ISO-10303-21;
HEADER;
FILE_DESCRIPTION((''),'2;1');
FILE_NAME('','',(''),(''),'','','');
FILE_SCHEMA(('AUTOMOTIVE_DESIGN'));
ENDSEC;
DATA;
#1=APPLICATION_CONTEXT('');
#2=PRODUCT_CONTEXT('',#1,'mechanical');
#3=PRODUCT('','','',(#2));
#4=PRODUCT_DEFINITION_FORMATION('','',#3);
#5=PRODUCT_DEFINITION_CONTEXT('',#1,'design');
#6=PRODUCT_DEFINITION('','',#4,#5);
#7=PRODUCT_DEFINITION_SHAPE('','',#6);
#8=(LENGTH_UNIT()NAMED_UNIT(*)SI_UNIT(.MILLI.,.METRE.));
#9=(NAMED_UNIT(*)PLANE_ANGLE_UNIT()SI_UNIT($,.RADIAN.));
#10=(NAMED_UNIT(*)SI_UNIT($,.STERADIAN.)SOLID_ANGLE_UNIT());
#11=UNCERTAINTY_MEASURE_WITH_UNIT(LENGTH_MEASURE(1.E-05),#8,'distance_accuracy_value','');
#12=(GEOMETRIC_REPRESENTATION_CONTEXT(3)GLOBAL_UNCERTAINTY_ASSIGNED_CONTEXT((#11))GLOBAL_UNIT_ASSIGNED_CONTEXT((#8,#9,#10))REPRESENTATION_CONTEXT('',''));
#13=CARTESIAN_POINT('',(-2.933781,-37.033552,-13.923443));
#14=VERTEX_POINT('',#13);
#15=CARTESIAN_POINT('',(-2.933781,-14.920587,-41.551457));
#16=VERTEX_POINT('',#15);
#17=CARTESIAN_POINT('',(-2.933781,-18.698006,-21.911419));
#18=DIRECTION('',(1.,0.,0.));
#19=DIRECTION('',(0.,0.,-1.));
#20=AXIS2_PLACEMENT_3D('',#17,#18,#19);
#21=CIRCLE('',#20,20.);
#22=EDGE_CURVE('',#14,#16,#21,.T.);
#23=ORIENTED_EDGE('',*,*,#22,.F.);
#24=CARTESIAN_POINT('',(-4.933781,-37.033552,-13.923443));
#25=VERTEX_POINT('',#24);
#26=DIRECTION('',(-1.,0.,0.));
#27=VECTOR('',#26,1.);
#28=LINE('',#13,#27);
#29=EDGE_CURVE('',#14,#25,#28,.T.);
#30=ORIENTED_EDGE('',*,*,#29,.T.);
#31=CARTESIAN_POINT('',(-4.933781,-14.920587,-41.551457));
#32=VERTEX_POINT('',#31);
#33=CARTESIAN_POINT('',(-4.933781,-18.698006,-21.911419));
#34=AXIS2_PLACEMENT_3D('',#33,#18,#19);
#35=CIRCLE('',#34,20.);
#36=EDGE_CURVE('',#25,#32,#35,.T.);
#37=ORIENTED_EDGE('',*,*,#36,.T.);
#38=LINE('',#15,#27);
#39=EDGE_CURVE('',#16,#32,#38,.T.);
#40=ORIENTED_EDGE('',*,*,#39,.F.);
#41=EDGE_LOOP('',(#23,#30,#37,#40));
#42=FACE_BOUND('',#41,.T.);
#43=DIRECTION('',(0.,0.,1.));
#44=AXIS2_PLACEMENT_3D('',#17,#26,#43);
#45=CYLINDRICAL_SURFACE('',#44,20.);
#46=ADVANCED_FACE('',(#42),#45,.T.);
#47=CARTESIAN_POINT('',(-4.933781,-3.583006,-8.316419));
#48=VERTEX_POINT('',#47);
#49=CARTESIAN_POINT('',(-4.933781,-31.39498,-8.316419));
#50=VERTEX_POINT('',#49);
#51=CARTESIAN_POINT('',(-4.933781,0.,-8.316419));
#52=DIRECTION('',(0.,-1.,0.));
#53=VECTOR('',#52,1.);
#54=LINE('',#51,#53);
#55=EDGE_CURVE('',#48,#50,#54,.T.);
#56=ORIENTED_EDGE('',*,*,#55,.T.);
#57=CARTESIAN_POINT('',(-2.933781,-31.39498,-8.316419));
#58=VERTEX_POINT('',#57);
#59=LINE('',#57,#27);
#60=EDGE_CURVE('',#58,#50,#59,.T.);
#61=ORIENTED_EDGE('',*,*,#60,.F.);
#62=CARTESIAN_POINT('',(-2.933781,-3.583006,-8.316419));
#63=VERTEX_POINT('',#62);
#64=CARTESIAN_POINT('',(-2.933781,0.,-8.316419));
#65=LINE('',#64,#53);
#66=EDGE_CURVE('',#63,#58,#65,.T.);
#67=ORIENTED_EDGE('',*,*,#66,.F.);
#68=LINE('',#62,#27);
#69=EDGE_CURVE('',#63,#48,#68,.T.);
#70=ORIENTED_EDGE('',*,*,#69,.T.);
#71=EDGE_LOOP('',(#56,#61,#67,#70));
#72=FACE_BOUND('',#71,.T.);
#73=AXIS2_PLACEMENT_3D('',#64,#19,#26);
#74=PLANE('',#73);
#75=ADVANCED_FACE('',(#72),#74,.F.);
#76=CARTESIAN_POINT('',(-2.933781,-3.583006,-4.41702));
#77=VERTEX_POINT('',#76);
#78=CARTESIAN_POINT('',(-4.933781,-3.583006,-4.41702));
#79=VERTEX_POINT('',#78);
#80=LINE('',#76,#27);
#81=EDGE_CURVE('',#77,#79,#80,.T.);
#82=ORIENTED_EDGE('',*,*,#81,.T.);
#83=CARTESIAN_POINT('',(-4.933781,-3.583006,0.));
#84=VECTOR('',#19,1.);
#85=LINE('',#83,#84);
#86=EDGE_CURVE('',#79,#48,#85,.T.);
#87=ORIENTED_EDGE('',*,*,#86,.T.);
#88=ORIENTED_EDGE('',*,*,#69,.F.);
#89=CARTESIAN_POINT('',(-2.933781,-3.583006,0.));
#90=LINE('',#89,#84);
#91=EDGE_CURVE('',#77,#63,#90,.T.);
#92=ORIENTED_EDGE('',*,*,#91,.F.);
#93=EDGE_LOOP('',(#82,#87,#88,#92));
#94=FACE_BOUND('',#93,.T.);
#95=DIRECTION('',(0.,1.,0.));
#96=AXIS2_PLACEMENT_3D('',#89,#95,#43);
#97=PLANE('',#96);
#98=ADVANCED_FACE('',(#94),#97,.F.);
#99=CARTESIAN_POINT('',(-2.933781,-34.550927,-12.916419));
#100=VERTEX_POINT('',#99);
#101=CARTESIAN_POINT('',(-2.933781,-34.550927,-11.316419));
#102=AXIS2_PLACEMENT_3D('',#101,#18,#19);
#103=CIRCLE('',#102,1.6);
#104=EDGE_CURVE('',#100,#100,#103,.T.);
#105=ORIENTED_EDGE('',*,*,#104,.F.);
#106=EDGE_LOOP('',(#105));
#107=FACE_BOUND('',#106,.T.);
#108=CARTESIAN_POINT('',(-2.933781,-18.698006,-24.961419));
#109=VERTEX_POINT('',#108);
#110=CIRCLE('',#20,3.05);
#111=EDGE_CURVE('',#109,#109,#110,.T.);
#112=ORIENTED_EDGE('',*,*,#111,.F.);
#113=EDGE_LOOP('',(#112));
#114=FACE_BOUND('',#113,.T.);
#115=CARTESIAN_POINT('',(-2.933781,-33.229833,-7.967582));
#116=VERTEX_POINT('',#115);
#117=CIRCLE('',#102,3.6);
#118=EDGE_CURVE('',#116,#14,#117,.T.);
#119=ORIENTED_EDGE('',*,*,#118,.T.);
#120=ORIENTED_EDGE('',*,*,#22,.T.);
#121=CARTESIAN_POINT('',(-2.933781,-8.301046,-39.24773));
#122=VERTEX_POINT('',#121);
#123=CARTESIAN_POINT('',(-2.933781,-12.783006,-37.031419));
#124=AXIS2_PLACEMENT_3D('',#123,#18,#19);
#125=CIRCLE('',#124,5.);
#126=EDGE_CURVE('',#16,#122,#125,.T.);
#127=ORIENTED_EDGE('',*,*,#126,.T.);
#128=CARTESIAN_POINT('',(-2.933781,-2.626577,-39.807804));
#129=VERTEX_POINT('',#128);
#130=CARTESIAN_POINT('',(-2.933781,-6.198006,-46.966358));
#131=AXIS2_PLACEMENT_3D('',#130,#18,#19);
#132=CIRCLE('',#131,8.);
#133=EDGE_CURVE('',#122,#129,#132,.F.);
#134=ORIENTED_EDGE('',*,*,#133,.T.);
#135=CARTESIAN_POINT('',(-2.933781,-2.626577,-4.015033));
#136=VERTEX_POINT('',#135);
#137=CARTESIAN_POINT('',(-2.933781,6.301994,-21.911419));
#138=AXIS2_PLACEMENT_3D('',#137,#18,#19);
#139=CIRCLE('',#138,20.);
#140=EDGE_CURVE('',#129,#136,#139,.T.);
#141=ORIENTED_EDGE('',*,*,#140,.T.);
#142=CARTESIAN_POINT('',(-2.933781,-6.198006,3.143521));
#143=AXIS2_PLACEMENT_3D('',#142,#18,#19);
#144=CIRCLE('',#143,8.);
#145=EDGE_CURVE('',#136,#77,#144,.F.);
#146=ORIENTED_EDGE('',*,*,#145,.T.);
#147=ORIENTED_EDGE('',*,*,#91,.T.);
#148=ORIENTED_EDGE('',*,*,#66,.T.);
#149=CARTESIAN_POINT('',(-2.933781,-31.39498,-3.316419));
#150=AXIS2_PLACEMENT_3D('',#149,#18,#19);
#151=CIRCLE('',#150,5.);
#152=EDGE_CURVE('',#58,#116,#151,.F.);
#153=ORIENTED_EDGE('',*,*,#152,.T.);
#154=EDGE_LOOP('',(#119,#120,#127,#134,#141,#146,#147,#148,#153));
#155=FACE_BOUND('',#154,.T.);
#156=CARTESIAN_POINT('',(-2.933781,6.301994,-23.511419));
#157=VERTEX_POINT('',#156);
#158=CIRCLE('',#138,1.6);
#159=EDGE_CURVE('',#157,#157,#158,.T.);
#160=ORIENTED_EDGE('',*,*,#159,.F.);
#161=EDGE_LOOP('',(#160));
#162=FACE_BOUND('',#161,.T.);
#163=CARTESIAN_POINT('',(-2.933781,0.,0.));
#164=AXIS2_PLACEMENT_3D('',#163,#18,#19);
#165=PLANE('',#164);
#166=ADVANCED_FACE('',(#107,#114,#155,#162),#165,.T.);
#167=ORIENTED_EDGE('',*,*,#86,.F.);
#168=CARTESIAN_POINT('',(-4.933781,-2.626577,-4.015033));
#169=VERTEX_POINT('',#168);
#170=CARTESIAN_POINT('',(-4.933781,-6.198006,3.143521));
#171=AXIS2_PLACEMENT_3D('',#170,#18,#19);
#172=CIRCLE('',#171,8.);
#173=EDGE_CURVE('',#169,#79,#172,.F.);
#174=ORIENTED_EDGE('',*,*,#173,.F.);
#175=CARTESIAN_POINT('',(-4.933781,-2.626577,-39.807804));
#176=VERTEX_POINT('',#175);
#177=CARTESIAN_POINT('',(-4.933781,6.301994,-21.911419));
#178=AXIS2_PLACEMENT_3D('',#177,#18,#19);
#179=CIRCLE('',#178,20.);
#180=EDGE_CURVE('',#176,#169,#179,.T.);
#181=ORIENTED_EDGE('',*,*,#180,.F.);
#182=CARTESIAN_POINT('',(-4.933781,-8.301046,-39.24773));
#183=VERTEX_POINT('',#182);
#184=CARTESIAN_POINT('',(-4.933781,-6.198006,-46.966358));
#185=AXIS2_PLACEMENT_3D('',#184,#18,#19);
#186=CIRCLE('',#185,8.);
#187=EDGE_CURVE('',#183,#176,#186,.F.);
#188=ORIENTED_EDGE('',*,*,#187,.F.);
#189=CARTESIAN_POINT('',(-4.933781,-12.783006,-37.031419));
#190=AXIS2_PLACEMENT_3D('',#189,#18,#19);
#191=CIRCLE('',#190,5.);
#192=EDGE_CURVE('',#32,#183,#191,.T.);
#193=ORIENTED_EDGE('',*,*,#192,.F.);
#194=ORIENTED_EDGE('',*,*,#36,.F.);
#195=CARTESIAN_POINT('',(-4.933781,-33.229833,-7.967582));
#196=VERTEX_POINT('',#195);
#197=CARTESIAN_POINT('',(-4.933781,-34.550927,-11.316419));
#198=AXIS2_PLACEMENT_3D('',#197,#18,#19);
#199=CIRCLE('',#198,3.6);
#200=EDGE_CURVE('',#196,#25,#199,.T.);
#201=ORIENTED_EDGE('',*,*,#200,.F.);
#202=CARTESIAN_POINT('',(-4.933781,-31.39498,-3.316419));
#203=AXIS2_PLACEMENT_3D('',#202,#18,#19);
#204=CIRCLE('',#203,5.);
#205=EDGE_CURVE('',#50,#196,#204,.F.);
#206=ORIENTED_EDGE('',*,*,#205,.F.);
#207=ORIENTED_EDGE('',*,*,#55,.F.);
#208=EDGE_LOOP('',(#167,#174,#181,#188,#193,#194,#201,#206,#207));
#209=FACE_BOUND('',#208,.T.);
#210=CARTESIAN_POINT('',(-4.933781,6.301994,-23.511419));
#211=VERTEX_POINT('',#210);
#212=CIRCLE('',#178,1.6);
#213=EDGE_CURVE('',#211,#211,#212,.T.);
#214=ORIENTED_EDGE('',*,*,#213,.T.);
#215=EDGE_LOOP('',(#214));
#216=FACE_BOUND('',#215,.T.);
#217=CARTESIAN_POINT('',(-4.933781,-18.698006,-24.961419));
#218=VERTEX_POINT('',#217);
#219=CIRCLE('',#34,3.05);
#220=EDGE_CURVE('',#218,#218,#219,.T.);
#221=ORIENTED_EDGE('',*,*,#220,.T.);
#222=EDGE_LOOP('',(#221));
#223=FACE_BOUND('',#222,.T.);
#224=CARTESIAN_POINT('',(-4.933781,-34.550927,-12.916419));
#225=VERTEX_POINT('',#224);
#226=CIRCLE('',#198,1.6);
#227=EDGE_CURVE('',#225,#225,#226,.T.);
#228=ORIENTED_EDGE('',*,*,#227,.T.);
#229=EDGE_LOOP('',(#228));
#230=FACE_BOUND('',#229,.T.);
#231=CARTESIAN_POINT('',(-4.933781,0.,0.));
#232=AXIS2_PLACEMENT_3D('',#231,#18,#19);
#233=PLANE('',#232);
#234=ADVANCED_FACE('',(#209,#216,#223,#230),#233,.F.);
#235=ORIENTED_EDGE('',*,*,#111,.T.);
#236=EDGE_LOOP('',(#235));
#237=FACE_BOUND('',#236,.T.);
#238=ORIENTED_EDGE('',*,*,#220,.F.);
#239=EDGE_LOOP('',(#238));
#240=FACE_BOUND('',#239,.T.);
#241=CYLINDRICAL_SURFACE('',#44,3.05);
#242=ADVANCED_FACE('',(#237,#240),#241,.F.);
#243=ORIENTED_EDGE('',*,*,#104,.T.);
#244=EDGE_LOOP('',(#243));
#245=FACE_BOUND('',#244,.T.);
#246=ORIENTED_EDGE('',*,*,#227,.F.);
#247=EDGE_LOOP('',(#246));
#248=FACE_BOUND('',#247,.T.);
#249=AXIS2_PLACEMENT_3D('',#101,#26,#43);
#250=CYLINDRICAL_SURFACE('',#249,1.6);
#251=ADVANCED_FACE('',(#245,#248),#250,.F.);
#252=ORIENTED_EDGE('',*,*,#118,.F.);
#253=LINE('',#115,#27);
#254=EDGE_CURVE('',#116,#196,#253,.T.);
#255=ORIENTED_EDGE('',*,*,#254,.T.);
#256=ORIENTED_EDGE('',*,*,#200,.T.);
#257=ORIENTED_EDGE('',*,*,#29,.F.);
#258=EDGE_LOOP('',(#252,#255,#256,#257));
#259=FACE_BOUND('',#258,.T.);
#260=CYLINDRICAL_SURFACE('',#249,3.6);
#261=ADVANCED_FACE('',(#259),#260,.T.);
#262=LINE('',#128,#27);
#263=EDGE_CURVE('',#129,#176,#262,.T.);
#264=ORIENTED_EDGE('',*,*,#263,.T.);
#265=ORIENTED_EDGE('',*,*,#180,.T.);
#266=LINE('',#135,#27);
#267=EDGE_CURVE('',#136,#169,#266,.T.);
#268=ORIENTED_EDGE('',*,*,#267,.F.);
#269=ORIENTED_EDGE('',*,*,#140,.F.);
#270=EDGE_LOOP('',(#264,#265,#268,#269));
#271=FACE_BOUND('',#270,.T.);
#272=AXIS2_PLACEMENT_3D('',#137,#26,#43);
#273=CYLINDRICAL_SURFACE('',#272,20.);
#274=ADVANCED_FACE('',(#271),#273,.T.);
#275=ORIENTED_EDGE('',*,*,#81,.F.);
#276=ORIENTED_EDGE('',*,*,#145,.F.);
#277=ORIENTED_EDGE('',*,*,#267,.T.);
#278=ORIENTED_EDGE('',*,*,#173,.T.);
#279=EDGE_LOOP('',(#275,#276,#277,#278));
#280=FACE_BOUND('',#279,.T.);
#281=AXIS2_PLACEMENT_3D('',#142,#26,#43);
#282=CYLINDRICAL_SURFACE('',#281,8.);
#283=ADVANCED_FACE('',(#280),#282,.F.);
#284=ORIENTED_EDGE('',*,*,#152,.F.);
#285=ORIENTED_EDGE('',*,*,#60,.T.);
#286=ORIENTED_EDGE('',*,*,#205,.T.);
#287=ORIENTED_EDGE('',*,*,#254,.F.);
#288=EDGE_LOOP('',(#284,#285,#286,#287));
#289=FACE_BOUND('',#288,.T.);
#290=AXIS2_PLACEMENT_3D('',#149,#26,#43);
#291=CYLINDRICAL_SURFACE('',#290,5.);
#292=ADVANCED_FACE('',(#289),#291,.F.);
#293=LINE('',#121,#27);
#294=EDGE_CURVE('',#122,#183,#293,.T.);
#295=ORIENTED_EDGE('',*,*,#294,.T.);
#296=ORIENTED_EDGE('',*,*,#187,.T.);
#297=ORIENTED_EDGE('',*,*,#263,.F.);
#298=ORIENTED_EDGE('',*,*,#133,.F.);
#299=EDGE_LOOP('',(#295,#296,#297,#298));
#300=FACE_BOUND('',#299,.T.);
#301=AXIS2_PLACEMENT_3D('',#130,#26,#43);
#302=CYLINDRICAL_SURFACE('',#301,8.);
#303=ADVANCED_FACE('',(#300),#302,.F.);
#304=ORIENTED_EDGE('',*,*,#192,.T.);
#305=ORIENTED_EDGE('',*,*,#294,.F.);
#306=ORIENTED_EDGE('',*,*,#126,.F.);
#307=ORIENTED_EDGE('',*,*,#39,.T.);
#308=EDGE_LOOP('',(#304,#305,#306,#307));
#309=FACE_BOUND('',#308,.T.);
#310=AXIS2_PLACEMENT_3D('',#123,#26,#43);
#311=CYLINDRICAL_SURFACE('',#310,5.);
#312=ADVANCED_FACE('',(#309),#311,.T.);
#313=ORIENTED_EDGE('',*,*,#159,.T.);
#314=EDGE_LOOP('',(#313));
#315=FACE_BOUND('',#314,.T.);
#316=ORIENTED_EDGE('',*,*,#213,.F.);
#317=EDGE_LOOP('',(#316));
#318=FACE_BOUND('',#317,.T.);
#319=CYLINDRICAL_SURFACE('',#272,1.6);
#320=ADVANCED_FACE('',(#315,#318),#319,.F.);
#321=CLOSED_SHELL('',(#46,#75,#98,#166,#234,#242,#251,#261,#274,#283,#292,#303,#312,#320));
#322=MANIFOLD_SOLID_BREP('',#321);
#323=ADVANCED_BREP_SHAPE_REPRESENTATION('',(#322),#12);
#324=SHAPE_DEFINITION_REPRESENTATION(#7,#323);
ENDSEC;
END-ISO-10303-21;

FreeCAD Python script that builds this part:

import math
import FreeCAD as App
import Part
import Sketcher

V = App.Vector
Q = App.Units.Quantity

doc = App.newDocument("Part")
body = doc.addObject("PartDesign::Body", "Body")

sketch1 = body.newObject("Sketcher::SketchObject", "Sketch")
sketch1.AttachmentSupport = (doc.getObject("YZ_Plane"), [""])
sketch1.MapMode = "FlatFace"
sketch1.AttachmentOffset = App.Placement(V(0, 0, -4.933781), App.Rotation())
sketch1.addGeometry([
    Part.LineSegment(V(-3.6, -8.3, 0), V(-31.4, -8.3, 0)),
    Part.ArcOfCircle(Part.Circle(V(-31.4, -3.3, 0), V(0, 0, 1), 5), math.radians(-112), math.radians(-90)),
    Part.ArcOfCircle(Part.Circle(V(-34.6, -11.3, 0), V(0, 0, 1), 3.6), math.radians(68), math.radians(226)),
    Part.ArcOfCircle(Part.Circle(V(-18.7, -21.9, 0), V(0, 0, 1), 20), math.radians(156), math.radians(281)),
    Part.ArcOfCircle(Part.Circle(V(-12.8, -37, 0), V(0, 0, 1), 5), math.radians(-115), math.radians(-26)),
    Part.ArcOfCircle(Part.Circle(V(-6.2, -47, 0), V(0, 0, 1), 8), math.radians(63), math.radians(105)),
    Part.ArcOfCircle(Part.Circle(V(6.3, -21.9, 0), V(0, 0, 1), 20), math.radians(-117), math.radians(117)),
    Part.ArcOfCircle(Part.Circle(V(-6.2, 3.1, 0), V(0, 0, 1), 8), math.radians(-70.92), math.radians(-63.49)),
    Part.LineSegment(V(-3.6, -4.4, 0), V(-3.6, -8.3, 0)),
    Part.Circle(V(-34.6, -11.3, 0), V(0, 0, 1), 1.6),
    Part.Circle(V(-18.7, -21.9, 0), V(0, 0, 1), 3),
    Part.Circle(V(6.3, -21.9, 0), V(0, 0, 1), 1.6),
], False)
sketch1.addConstraint([
    Sketcher.Constraint("Tangent", 0, 2, 1, 2),
    Sketcher.Constraint("Tangent", 1, 1, 2, 1),
    Sketcher.Constraint("Coincident", 2, 2, 3, 1),
    Sketcher.Constraint("Coincident", 3, 2, 4, 1),
    Sketcher.Constraint("Coincident", 4, 2, 5, 2),
    Sketcher.Constraint("Tangent", 5, 1, 6, 1),
    Sketcher.Constraint("Tangent", 6, 2, 7, 2),
    Sketcher.Constraint("Coincident", 7, 1, 8, 1),
    Sketcher.Constraint("Coincident", 8, 2, 0, 1),
    Sketcher.Constraint("Horizontal", 0),
    Sketcher.Constraint("Vertical", 8),
    Sketcher.Constraint("Coincident", 9, 3, 2, 3),
    Sketcher.Constraint("Coincident", 10, 3, 3, 3),
    Sketcher.Constraint("Coincident", 11, 3, 6, 3),
    Sketcher.Constraint("Equal", 1, 4),
    Sketcher.Constraint("Equal", 3, 6),
    Sketcher.Constraint("Equal", 5, 7),
    Sketcher.Constraint("Equal", 9, 11),
    Sketcher.Constraint("Horizontal", 3, 3, 6, 3),
    Sketcher.Constraint("Vertical", 5, 3, 7, 3),
    Sketcher.Constraint("Radius", 1, Q("5 mm")),
    Sketcher.Constraint("Radius", 3, Q("20 mm")),
    Sketcher.Constraint("Radius", 5, Q("8 mm")),
    Sketcher.Constraint("Diameter", 9, Q("3.2 mm")),
    Sketcher.Constraint("Diameter", 10, Q("6.1 mm")),
    Sketcher.Constraint("Radius", 2, Q("3.6 mm")),
    Sketcher.Constraint("DistanceY", 2, 3, 1, 3, Q("8 mm")),
    Sketcher.Constraint("DistanceX", 3, 3, 6, 3, Q("25 mm")),
    Sketcher.Constraint("DistanceX", 3, 3, 5, 3, Q("12.5 mm")),
    Sketcher.Constraint("DistanceY", 4, 3, 3, 3, Q("15.12 mm")),
    Sketcher.Constraint("DistanceY", 8, 2, 8, 1, Q("3.899399 mm")),
    Sketcher.Constraint("DistanceY", 3, 3, 2, 3, Q("10.595 mm")),
    Sketcher.Constraint("DistanceX", 3, 3, 4, 3, Q("5.915 mm")),
    Sketcher.Constraint("DistanceX", 0, 2, 0, 1, Q("27.811974 mm")),
    Sketcher.Constraint("DistanceX", 1, 3, -1, 1, Q("31.39498 mm")),
    Sketcher.Constraint("DistanceY", 1, 3, -1, 1, Q("3.316419 mm")),
])
pad1 = body.newObject("PartDesign::Pad", "Pad")
pad1.Profile = sketch1
pad1.Length = 2

doc.recompute()
